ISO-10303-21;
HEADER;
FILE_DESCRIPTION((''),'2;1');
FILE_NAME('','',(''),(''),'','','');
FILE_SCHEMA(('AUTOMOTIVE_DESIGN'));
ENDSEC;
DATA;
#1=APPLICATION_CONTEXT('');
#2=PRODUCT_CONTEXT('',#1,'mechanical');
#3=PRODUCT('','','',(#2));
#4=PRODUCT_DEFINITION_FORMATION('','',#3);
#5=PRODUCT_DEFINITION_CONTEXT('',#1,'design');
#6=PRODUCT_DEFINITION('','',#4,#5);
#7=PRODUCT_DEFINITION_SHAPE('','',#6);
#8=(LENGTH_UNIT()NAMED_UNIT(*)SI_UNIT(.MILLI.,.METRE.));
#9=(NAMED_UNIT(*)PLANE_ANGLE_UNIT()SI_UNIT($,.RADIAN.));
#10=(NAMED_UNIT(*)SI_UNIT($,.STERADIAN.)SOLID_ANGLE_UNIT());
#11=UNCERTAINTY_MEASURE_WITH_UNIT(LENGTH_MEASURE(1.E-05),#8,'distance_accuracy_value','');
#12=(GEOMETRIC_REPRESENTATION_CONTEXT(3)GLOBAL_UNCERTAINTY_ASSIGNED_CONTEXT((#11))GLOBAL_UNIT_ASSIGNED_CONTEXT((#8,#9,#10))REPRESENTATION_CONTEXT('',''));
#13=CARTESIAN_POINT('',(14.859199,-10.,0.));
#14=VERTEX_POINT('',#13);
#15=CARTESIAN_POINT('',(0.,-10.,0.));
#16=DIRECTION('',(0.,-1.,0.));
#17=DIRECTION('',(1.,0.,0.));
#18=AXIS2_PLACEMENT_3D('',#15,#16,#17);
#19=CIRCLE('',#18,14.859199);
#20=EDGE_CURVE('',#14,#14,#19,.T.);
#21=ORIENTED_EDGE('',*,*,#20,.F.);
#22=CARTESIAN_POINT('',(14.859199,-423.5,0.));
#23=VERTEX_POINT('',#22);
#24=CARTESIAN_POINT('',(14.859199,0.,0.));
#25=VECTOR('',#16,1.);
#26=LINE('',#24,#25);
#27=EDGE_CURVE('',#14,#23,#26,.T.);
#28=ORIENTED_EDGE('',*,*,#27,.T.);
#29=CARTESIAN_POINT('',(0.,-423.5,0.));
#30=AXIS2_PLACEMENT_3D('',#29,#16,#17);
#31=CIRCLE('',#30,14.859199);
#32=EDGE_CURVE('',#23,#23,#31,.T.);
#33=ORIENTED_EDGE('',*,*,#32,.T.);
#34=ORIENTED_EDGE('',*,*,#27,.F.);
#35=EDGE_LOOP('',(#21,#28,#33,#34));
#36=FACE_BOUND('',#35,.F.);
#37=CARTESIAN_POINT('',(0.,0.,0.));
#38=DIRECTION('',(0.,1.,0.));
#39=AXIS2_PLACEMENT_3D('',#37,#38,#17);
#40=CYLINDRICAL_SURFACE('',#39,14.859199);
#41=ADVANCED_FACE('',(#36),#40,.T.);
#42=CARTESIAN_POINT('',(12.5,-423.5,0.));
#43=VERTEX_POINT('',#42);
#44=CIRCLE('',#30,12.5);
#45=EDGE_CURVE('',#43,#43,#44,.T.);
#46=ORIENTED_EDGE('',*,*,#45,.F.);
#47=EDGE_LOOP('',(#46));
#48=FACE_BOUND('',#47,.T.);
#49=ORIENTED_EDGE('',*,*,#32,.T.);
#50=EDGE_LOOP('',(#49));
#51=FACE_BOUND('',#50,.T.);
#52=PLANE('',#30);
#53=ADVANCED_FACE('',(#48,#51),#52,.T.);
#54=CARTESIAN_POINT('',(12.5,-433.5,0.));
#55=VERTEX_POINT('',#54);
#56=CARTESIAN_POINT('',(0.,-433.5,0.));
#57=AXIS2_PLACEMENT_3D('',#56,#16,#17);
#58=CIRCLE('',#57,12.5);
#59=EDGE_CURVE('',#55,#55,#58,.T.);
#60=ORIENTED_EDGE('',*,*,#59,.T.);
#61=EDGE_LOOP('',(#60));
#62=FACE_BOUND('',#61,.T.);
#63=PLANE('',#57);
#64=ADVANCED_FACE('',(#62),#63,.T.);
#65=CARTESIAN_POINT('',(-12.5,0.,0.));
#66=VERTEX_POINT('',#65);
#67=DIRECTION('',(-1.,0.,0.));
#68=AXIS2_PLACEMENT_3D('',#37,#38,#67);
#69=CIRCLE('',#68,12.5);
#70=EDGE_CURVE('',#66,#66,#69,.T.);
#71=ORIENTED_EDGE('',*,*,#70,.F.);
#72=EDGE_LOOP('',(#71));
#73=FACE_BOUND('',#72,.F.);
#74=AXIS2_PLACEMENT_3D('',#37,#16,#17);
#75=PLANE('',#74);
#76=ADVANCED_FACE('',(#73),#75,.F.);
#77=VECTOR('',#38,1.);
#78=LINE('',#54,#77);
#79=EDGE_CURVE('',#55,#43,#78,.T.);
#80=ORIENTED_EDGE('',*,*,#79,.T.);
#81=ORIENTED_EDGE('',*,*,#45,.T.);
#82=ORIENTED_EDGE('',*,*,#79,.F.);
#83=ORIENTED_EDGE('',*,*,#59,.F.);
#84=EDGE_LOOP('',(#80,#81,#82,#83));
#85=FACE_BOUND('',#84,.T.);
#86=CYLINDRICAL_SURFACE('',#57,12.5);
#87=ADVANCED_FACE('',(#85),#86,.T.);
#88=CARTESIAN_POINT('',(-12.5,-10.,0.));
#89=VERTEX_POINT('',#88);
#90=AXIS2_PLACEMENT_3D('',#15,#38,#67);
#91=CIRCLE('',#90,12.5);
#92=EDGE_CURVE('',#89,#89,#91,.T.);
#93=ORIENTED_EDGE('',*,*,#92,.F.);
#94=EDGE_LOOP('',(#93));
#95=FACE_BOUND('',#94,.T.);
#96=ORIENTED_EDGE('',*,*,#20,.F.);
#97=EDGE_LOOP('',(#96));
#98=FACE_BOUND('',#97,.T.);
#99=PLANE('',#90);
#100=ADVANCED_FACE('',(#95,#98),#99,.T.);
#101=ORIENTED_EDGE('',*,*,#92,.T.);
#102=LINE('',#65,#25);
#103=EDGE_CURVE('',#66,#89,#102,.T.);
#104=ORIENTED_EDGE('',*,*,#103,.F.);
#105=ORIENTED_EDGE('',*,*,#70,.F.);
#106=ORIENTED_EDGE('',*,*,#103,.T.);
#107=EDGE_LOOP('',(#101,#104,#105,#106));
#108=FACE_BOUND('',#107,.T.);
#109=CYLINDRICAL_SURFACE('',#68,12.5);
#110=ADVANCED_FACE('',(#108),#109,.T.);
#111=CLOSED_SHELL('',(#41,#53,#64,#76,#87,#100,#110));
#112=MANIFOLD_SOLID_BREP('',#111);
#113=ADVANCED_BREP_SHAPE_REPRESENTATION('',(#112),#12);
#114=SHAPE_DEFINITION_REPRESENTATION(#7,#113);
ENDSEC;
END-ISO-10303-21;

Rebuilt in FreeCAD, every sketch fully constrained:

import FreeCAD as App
import Part
import Sketcher

V = App.Vector

doc = App.newDocument("Part")
body = doc.addObject("PartDesign::Body", "Body")

sketch1 = doc.addObject("Sketcher::SketchObject", "Sketch")
body.addObject(sketch1)
sketch1.AttachmentSupport = (doc.XZ_Plane, [""])
sketch1.MapMode = "FlatFace"
sketch1.addGeometry(Part.Circle(V(0, 0, 0), V(0, 0, 1), 15), False)
sketch1.addConstraint([
    Sketcher.Constraint("Coincident", 0, 3, -1, 1),
    Sketcher.Constraint("Diameter", 0, 29.718398),
])
pad1 = doc.addObject("PartDesign::Pad", "Pad")
body.addObject(pad1)
pad1.Profile = sketch1
pad1.Length = 433.5

sketch2 = doc.addObject("Sketcher::SketchObject", "Sketch001")
body.addObject(sketch2)
sketch2.AttachmentSupport = (doc.XZ_Plane, [""])
sketch2.MapMode = "FlatFace"
sketch2.addGeometry([
    Part.Circle(V(0, 0, 0), V(0, 0, 1), 15),
    Part.Circle(V(0, 0, 0), V(0, 0, 1), 12),
], False)
sketch2.addConstraint([
    Sketcher.Constraint("Coincident", 0, 3, -1, 1),
    Sketcher.Constraint("Coincident", 1, 3, -1, 1),
    Sketcher.Constraint("Diameter", 1, 25.0),
    Sketcher.Constraint("Diameter", 0, 29.718398),
])
pocket1 = doc.addObject("PartDesign::Pocket", "Pocket")
body.addObject(pocket1)
pocket1.Profile = sketch2
pocket1.Length = 10
pocket1.Reversed = True

sketch3 = doc.addObject("Sketcher::SketchObject", "Sketch002")
body.addObject(sketch3)
sketch3.AttachmentSupport = (doc.XZ_Plane, [""])
sketch3.MapMode = "FlatFace"
sketch3.AttachmentOffset = App.Placement(V(0, 0, 433.5), App.Rotation())
sketch3.addGeometry([
    Part.Circle(V(0, 0, 0), V(0, 0, 1), 15),
    Part.Circle(V(0, 0, 0), V(0, 0, 1), 12),
], False)
sketch3.addConstraint([
    Sketcher.Constraint("Coincident", 0, 3, -1, 1),
    Sketcher.Constraint("Coincident", 1, 3, -1, 1),
    Sketcher.Constraint("Diameter", 1, 25.0),
    Sketcher.Constraint("Diameter", 0, 29.718398),
])
pocket2 = doc.addObject("PartDesign::Pocket", "Pocket001")
body.addObject(pocket2)
pocket2.Profile = sketch3
pocket2.Length = 10

doc.recompute()
